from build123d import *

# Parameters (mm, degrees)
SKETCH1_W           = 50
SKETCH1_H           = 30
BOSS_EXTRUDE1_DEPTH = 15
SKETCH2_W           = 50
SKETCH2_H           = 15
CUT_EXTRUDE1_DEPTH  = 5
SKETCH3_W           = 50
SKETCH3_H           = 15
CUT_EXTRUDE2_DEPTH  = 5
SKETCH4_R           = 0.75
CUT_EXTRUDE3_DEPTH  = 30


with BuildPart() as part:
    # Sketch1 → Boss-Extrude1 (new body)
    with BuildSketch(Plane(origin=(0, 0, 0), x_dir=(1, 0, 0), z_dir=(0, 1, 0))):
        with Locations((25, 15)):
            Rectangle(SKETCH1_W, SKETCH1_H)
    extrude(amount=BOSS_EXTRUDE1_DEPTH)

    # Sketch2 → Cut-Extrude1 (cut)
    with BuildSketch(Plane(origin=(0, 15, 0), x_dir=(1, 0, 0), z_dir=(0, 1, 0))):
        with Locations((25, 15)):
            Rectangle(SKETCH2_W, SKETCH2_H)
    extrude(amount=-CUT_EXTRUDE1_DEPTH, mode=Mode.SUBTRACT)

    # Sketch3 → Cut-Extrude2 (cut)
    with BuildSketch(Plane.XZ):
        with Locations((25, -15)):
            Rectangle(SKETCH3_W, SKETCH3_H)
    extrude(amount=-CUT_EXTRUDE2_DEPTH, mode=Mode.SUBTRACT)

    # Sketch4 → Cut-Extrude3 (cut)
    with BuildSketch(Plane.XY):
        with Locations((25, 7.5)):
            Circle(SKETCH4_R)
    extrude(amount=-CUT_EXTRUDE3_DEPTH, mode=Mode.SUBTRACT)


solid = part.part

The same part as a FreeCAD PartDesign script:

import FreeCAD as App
import Part
import Sketcher
from FreeCAD import Vector


def add_polygon(sketch, points):
    """Adds a closed chain of lines whose ends are joined by coincident constraints."""
    first, n = sketch.GeometryCount, len(points)
    for a, b in zip(points, points[1:] + points[:1]):
        sketch.addGeometry(Part.LineSegment(App.Vector(*a, 0), App.Vector(*b, 0)), False)
    for i in range(n):
        sketch.addConstraint(Sketcher.Constraint("Coincident", first + i, 2, first + (i + 1) % n, 1))

doc = App.newDocument("Part")
body = doc.addObject("PartDesign::Body", "Body")

sketch1 = body.newObject("Sketcher::SketchObject", "Sketch")
sketch1.AttachmentSupport = (doc.getObject("XZ_Plane"), [""])
sketch1.MapMode = "FlatFace"
add_polygon(sketch1, [(0, -30), (0, 0), (50, 0), (50, -30)])
sketch1.addConstraint(Sketcher.Constraint("Vertical", 0))
sketch1.addConstraint(Sketcher.Constraint("Horizontal", 1))
sketch1.addConstraint(Sketcher.Constraint("Vertical", 2))
sketch1.addConstraint(Sketcher.Constraint("Horizontal", 3))
sketch1.addConstraint(Sketcher.Constraint("Coincident", 0, 2, -1, 1))
sketch1.addConstraint(Sketcher.Constraint("DistanceX", 1, 1, 1, 2, 50.0))
sketch1.addConstraint(Sketcher.Constraint("DistanceY", 0, 1, 0, 2, 30.0))
pad1 = body.newObject("PartDesign::Pad", "Pad")
pad1.Profile = sketch1
pad1.Length = 15
pad1.Reversed = True

sketch2 = body.newObject("Sketcher::SketchObject", "Sketch001")
sketch2.AttachmentSupport = (doc.getObject("XZ_Plane"), [""])
sketch2.MapMode = "FlatFace"
sketch2.AttachmentOffset = App.Placement(Vector(0, 0, -15), App.Rotation())
add_polygon(sketch2, [(0, -22), (0, -8), (50, -8), (50, -22)])
sketch2.addConstraint(Sketcher.Constraint("Vertical", 0))
sketch2.addConstraint(Sketcher.Constraint("Horizontal", 1))
sketch2.addConstraint(Sketcher.Constraint("Vertical", 2))
sketch2.addConstraint(Sketcher.Constraint("Horizontal", 3))
sketch2.addConstraint(Sketcher.Constraint("PointOnObject", 0, 2, -2))
sketch2.addConstraint(Sketcher.Constraint("DistanceX", 1, 1, 1, 2, 50.0))
sketch2.addConstraint(Sketcher.Constraint("DistanceY", 0, 1, 0, 2, 15.0))
sketch2.addConstraint(Sketcher.Constraint("DistanceY", 0, 2, -1, 1, 7.5))
pocket1 = body.newObject("PartDesign::Pocket", "Pocket")
pocket1.Profile = sketch2
pocket1.Length = 5
pocket1.Reversed = True

sketch3 = body.newObject("Sketcher::SketchObject", "Sketch002")
sketch3.AttachmentSupport = (doc.getObject("XZ_Plane"), [""])
sketch3.MapMode = "FlatFace"
add_polygon(sketch3, [(0, -8), (0, -22), (50, -22), (50, -8)])
sketch3.addConstraint(Sketcher.Constraint("Vertical", 0))
sketch3.addConstraint(Sketcher.Constraint("Horizontal", 1))
sketch3.addConstraint(Sketcher.Constraint("Vertical", 2))
sketch3.addConstraint(Sketcher.Constraint("Horizontal", 3))
sketch3.addConstraint(Sketcher.Constraint("PointOnObject", 0, 2, -2))
sketch3.addConstraint(Sketcher.Constraint("DistanceX", 1, 1, 1, 2, 50.0))
sketch3.addConstraint(Sketcher.Constraint("DistanceY", 0, 2, 0, 1, 15.0))
sketch3.addConstraint(Sketcher.Constraint("DistanceY", 0, 2, -1, 1, 22.5))
pocket2 = body.newObject("PartDesign::Pocket", "Pocket001")
pocket2.Profile = sketch3
pocket2.Length = 5

sketch4 = body.newObject("Sketcher::SketchObject", "Sketch003")
sketch4.AttachmentSupport = (doc.getObject("XY_Plane"), [""])
sketch4.MapMode = "FlatFace"
sketch4.addGeometry(Part.Circle(Vector(25, 7.5, 0), Vector(0, 0, 1), 0.8), False)
sketch4.addConstraint(Sketcher.Constraint("Diameter", 0, 1.5))
sketch4.addConstraint(Sketcher.Constraint("DistanceX", -1, 1, 0, 3, 25.0))
sketch4.addConstraint(Sketcher.Constraint("DistanceY", -1, 1, 0, 3, 7.5))
pocket3 = body.newObject("PartDesign::Pocket", "Pocket002")
pocket3.Profile = sketch4
pocket3.Length = 30

doc.recompute()
